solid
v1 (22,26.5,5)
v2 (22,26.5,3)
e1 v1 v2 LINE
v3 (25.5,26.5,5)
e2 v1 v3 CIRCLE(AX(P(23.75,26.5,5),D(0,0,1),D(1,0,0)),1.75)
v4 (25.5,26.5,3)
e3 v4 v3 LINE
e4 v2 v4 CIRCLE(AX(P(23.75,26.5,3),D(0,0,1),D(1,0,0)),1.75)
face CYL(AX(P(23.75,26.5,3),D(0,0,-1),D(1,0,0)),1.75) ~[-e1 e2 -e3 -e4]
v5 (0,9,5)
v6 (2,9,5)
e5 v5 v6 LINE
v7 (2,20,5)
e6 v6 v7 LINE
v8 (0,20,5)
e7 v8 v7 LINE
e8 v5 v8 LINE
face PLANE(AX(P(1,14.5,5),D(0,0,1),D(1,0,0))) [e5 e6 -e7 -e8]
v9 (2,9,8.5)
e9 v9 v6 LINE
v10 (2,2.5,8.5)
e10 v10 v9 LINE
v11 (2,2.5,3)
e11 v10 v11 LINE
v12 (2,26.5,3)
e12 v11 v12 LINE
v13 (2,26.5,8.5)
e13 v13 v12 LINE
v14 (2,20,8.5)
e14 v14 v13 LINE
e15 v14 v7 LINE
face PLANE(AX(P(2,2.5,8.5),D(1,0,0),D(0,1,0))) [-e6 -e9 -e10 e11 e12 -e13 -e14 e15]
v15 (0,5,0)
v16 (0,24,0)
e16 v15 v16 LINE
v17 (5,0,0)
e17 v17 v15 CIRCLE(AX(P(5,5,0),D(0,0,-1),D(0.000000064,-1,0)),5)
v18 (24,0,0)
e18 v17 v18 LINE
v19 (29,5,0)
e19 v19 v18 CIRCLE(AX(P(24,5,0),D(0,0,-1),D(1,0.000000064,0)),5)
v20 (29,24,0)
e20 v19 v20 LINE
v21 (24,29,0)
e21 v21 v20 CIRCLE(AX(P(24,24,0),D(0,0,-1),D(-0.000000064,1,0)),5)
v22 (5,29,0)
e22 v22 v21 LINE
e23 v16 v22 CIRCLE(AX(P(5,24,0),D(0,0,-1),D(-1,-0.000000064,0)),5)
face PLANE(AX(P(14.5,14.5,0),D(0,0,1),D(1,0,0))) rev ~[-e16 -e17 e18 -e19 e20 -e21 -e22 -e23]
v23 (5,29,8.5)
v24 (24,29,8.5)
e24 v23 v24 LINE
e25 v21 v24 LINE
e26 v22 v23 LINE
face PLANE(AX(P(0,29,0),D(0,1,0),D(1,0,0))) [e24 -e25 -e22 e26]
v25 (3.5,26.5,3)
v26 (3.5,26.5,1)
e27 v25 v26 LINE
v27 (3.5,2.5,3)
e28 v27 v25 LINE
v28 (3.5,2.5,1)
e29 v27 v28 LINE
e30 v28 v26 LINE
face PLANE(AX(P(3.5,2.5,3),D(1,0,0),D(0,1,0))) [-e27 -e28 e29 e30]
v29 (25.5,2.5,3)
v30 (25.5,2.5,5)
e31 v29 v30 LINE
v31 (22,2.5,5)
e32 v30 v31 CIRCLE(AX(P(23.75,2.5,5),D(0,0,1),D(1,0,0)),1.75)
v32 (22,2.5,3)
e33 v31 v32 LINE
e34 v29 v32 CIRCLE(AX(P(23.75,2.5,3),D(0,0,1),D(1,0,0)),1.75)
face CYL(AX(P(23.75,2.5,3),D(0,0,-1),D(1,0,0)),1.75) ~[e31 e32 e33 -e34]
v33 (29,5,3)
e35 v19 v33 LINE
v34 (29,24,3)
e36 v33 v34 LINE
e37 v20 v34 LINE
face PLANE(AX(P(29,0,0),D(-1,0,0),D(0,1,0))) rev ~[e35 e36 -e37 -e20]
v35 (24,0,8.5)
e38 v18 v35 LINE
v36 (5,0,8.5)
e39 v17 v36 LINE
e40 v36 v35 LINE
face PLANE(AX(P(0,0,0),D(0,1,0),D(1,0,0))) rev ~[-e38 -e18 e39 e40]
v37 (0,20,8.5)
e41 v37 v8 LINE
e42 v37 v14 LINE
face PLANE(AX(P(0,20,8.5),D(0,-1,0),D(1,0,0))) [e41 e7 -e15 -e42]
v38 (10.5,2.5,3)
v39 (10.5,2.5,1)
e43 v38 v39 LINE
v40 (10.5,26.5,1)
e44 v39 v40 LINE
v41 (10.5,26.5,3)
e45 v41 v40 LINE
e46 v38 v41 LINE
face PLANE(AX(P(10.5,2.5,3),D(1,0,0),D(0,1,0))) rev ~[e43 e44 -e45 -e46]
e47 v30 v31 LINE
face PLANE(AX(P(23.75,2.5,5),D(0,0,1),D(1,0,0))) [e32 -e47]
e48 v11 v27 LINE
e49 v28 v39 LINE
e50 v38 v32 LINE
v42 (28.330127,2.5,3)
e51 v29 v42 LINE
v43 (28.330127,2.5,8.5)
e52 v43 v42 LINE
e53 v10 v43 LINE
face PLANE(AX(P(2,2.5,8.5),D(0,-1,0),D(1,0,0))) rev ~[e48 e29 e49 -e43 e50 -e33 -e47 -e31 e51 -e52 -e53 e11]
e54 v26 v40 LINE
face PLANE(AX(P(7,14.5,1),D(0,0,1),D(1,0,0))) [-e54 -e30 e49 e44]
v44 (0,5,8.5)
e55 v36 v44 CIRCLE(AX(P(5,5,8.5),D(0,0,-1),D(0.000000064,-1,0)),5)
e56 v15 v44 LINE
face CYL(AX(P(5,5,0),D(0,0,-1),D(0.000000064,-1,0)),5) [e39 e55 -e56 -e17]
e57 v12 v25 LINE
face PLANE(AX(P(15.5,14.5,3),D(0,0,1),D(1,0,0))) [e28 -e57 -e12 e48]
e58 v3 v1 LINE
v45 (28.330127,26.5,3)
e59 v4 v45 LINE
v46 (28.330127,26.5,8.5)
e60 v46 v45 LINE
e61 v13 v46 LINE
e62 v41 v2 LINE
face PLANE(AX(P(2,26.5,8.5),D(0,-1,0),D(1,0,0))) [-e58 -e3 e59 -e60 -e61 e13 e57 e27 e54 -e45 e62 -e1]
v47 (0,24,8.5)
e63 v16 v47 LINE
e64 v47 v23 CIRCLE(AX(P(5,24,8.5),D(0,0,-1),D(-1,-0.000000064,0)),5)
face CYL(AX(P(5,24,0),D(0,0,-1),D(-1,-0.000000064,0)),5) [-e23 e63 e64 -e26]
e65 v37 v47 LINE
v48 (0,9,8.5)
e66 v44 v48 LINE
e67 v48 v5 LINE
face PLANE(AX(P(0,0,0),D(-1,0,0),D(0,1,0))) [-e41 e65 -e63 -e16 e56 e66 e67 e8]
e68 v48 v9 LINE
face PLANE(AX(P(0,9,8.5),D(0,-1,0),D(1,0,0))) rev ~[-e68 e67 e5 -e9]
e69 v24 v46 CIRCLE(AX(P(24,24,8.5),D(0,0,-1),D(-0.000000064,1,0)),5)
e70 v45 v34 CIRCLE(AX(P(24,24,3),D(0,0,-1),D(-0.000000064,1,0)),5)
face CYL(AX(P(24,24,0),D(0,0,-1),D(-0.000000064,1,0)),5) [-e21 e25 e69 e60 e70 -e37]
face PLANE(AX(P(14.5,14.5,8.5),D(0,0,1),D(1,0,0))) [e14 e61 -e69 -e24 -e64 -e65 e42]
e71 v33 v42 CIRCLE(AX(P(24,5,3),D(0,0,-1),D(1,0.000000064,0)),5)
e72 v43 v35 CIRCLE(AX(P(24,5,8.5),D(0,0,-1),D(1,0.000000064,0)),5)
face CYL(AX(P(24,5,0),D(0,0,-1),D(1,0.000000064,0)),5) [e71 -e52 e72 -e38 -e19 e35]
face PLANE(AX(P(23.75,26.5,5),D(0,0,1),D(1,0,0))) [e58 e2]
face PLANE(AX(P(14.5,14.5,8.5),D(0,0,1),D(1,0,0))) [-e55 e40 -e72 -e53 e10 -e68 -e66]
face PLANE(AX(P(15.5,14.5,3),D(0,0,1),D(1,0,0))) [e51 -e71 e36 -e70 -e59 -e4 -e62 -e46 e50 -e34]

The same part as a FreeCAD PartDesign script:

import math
import FreeCAD as App
import Part
import Sketcher

V = App.Vector

doc = App.newDocument("Part")
body = doc.addObject("PartDesign::Body", "Body")

sketch1 = doc.addObject("Sketcher::SketchObject", "Sketch")
body.addObject(sketch1)
sketch1.AttachmentSupport = (doc.XY_Plane, [""])
sketch1.MapMode = "FlatFace"
sketch1.addGeometry(Part.LineSegment(V(0, 29, 0), V(0, 0, 0)), False)
sketch1.addGeometry(Part.LineSegment(V(0, 0, 0), V(29, 0, 0)), False)
sketch1.addGeometry(Part.LineSegment(V(29, 0, 0), V(29, 29, 0)), False)
sketch1.addGeometry(Part.LineSegment(V(29, 29, 0), V(0, 29, 0)), False)
sketch1.addConstraint(Sketcher.Constraint("Coincident", 0, 2, 1, 1))
sketch1.addConstraint(Sketcher.Constraint("Coincident", 1, 2, 2, 1))
sketch1.addConstraint(Sketcher.Constraint("Coincident", 2, 2, 3, 1))
sketch1.addConstraint(Sketcher.Constraint("Coincident", 3, 2, 0, 1))
sketch1.addConstraint(Sketcher.Constraint("Vertical", 0))
sketch1.addConstraint(Sketcher.Constraint("Horizontal", 1))
sketch1.addConstraint(Sketcher.Constraint("Vertical", 2))
sketch1.addConstraint(Sketcher.Constraint("Horizontal", 3))
sketch1.addConstraint(Sketcher.Constraint("Coincident", 0, 2, -1, 1))
sketch1.addConstraint(Sketcher.Constraint("Equal", 3, 0))
sketch1.addConstraint(Sketcher.Constraint("DistanceX", 1, 1, 1, 2, 29.0))
pad1 = doc.addObject("PartDesign::Pad", "Pad")
body.addObject(pad1)
pad1.Profile = sketch1
pad1.Length = 8.5

sketch2 = doc.addObject("Sketcher::SketchObject", "Sketch001")
body.addObject(sketch2)
sketch2.AttachmentSupport = (doc.XY_Plane, [""])
sketch2.MapMode = "FlatFace"
sketch2.AttachmentOffset = App.Placement(V(0, 0, 8.5), App.Rotation())
sketch2.addGeometry(Part.LineSegment(V(2, 26, 0), V(2, 2, 0)), False)
sketch2.addGeometry(Part.LineSegment(V(2, 2, 0), V(29, 2, 0)), False)
sketch2.addGeometry(Part.LineSegment(V(29, 2, 0), V(29, 26, 0)), False)
sketch2.addGeometry(Part.LineSegment(V(29, 26, 0), V(2, 26, 0)), False)
sketch2.addConstraint(Sketcher.Constraint("Coincident", 0, 2, 1, 1))
sketch2.addConstraint(Sketcher.Constraint("Coincident", 1, 2, 2, 1))
sketch2.addConstraint(Sketcher.Constraint("Coincident", 2, 2, 3, 1))
sketch2.addConstraint(Sketcher.Constraint("Coincident", 3, 2, 0, 1))
sketch2.addConstraint(Sketcher.Constraint("Vertical", 0))
sketch2.addConstraint(Sketcher.Constraint("Horizontal", 1))
sketch2.addConstraint(Sketcher.Constraint("Vertical", 2))
sketch2.addConstraint(Sketcher.Constraint("Horizontal", 3))
sketch2.addConstraint(Sketcher.Constraint("DistanceX", 1, 1, 1, 2, 27.0))
sketch2.addConstraint(Sketcher.Constraint("DistanceY", 0, 2, 0, 1, 24.0))
sketch2.addConstraint(Sketcher.Constraint("DistanceX", -1, 1, 0, 2, 2.0))
sketch2.addConstraint(Sketcher.Constraint("DistanceY", -1, 1, 0, 2, 2.5))
pocket1 = doc.addObject("PartDesign::Pocket", "Pocket")
body.addObject(pocket1)
pocket1.Profile = sketch2
pocket1.Length = 5.5

sketch3 = doc.addObject("Sketcher::SketchObject", "Sketch002")
body.addObject(sketch3)
sketch3.AttachmentSupport = (doc.XY_Plane, [""])
sketch3.MapMode = "FlatFace"
sketch3.AttachmentOffset = App.Placement(V(0, 0, 3), App.Rotation())
sketch3.addGeometry(Part.LineSegment(V(4, 26, 0), V(4, 2, 0)), False)
sketch3.addGeometry(Part.LineSegment(V(4, 2, 0), V(10, 2, 0)), False)
sketch3.addGeometry(Part.LineSegment(V(10, 2, 0), V(10, 26, 0)), False)
sketch3.addGeometry(Part.LineSegment(V(10, 26, 0), V(4, 26, 0)), False)
sketch3.addConstraint(Sketcher.Constraint("Coincident", 0, 2, 1, 1))
sketch3.addConstraint(Sketcher.Constraint("Coincident", 1, 2, 2, 1))
sketch3.addConstraint(Sketcher.Constraint("Coincident", 2, 2, 3, 1))
sketch3.addConstraint(Sketcher.Constraint("Coincident", 3, 2, 0, 1))
sketch3.addConstraint(Sketcher.Constraint("Vertical", 0))
sketch3.addConstraint(Sketcher.Constraint("Horizontal", 1))
sketch3.addConstraint(Sketcher.Constraint("Vertical", 2))
sketch3.addConstraint(Sketcher.Constraint("Horizontal", 3))
sketch3.addConstraint(Sketcher.Constraint("DistanceX", 1, 1, 1, 2, 7.0))
sketch3.addConstraint(Sketcher.Constraint("DistanceY", 0, 2, 0, 1, 24.0))
sketch3.addConstraint(Sketcher.Constraint("DistanceX", -1, 1, 0, 2, 3.5))
sketch3.addConstraint(Sketcher.Constraint("DistanceY", -1, 1, 0, 2, 2.5))
pocket2 = doc.addObject("PartDesign::Pocket", "Pocket001")
body.addObject(pocket2)
pocket2.Profile = sketch3
pocket2.Length = 2

sketch4 = doc.addObject("Sketcher::SketchObject", "Sketch003")
body.addObject(sketch4)
sketch4.AttachmentSupport = (doc.XY_Plane, [""])
sketch4.MapMode = "FlatFace"
sketch4.AttachmentOffset = App.Placement(V(0, 0, 3), App.Rotation())
sketch4.addGeometry(Part.Circle(V(23.8, 2.5, 0), V(0, 0, 1), 1.8), False)
sketch4.addGeometry(Part.Circle(V(23.8, 26.5, 0), V(0, 0, 1), 1.8), False)
sketch4.addConstraint(Sketcher.Constraint("Equal", 0, 1))
sketch4.addConstraint(Sketcher.Constraint("Vertical", 0, 3, 1, 3))
sketch4.addConstraint(Sketcher.Constraint("Diameter", 0, 3.5))
sketch4.addConstraint(Sketcher.Constraint("DistanceY", 0, 3, 1, 3, 24.0))
sketch4.addConstraint(Sketcher.Constraint("DistanceY", -1, 1, 0, 3, 2.5))
sketch4.addConstraint(Sketcher.Constraint("DistanceX", -1, 1, 0, 3, 23.75))
pad2 = doc.addObject("PartDesign::Pad", "Pad001")
body.addObject(pad2)
pad2.Profile = sketch4
pad2.Length = 2

sketch5 = doc.addObject("Sketcher::SketchObject", "Sketch004")
body.addObject(sketch5)
sketch5.AttachmentSupport = (doc.XY_Plane, [""])
sketch5.MapMode = "FlatFace"
sketch5.AttachmentOffset = App.Placement(V(0, 0, 8.5), App.Rotation())
sketch5.addGeometry(Part.LineSegment(V(0, 20, 0), V(0, 9, 0)), False)
sketch5.addGeometry(Part.LineSegment(V(0, 9, 0), V(2, 9, 0)), False)
sketch5.addGeometry(Part.LineSegment(V(2, 9, 0), V(2, 20, 0)), False)
sketch5.addGeometry(Part.LineSegment(V(2, 20, 0), V(0, 20, 0)), False)
sketch5.addConstraint(Sketcher.Constraint("Coincident", 0, 2, 1, 1))
sketch5.addConstraint(Sketcher.Constraint("Coincident", 1, 2, 2, 1))
sketch5.addConstraint(Sketcher.Constraint("Coincident", 2, 2, 3, 1))
sketch5.addConstraint(Sketcher.Constraint("Coincident", 3, 2, 0, 1))
sketch5.addConstraint(Sketcher.Constraint("Vertical", 0))
sketch5.addConstraint(Sketcher.Constraint("Horizontal", 1))
sketch5.addConstraint(Sketcher.Constraint("Vertical", 2))
sketch5.addConstraint(Sketcher.Constraint("Horizontal", 3))
sketch5.addConstraint(Sketcher.Constraint("PointOnObject", 0, 2, -2))
sketch5.addConstraint(Sketcher.Constraint("DistanceX", 1, 1, 1, 2, 2.0))
sketch5.addConstraint(Sketcher.Constraint("DistanceY", 0, 2, 0, 1, 11.0))
sketch5.addConstraint(Sketcher.Constraint("DistanceY", -1, 1, 0, 2, 9.0))
pocket3 = doc.addObject("PartDesign::Pocket", "Pocket002")
body.addObject(pocket3)
pocket3.Profile = sketch5
pocket3.Length = 3.5

sketch6 = doc.addObject("Sketcher::SketchObject", "Sketch005")
body.addObject(sketch6)
sketch6.AttachmentSupport = (doc.XY_Plane, [""])
sketch6.MapMode = "FlatFace"
sketch6.addGeometry(Part.ArcOfCircle(Part.Circle(V(5, 5, 0), V(0, 0, 1), 5), math.radians(180), math.radians(270)), False)
sketch6.addGeometry(Part.LineSegment(V(5, 0, 0), V(0, 0, 0)), False)
sketch6.addGeometry(Part.LineSegment(V(0, 0, 0), V(0, 5, 0)), False)
sketch6.addGeometry(Part.ArcOfCircle(Part.Circle(V(5, 24, 0), V(0, 0, 1), 5), math.radians(90), math.radians(180)), False)
sketch6.addGeometry(Part.LineSegment(V(0, 24, 0), V(0, 29, 0)), False)
sketch6.addGeometry(Part.LineSegment(V(0, 29, 0), V(5, 29, 0)), False)
sketch6.addGeometry(Part.ArcOfCircle(Part.Circle(V(24, 5, 0), V(0, 0, 1), 5), math.radians(-90), math.radians(0)), False)
sketch6.addGeometry(Part.LineSegment(V(29, 5, 0), V(29, 0, 0)), False)
sketch6.addGeometry(Part.LineSegment(V(29, 0, 0), V(24, 0, 0)), False)
sketch6.addGeometry(Part.ArcOfCircle(Part.Circle(V(24, 24, 0), V(0, 0, 1), 5), math.radians(0), math.radians(90)), False)
sketch6.addGeometry(Part.LineSegment(V(24, 29, 0), V(29, 29, 0)), False)
sketch6.addGeometry(Part.LineSegment(V(29, 29, 0), V(29, 24, 0)), False)
sketch6.addConstraint(Sketcher.Constraint("Tangent", 0, 2, 1, 1))
sketch6.addConstraint(Sketcher.Constraint("Coincident", 1, 2, 2, 1))
sketch6.addConstraint(Sketcher.Constraint("Tangent", 2, 2, 0, 1))
sketch6.addConstraint(Sketcher.Constraint("Tangent", 3, 2, 4, 1))
sketch6.addConstraint(Sketcher.Constraint("Coincident", 4, 2, 5, 1))
sketch6.addConstraint(Sketcher.Constraint("Tangent", 5, 2, 3, 1))
sketch6.addConstraint(Sketcher.Constraint("Tangent", 6, 2, 7, 1))
sketch6.addConstraint(Sketcher.Constraint("Coincident", 7, 2, 8, 1))
sketch6.addConstraint(Sketcher.Constraint("Tangent", 8, 2, 6, 1))
sketch6.addConstraint(Sketcher.Constraint("Tangent", 9, 2, 10, 1))
sketch6.addConstraint(Sketcher.Constraint("Coincident", 10, 2, 11, 1))
sketch6.addConstraint(Sketcher.Constraint("Tangent", 11, 2, 9, 1))
sketch6.addConstraint(Sketcher.Constraint("Horizontal", 1))
sketch6.addConstraint(Sketcher.Constraint("Vertical", 2))
sketch6.addConstraint(Sketcher.Constraint("Vertical", 4))
sketch6.addConstraint(Sketcher.Constraint("Horizontal", 5))
sketch6.addConstraint(Sketcher.Constraint("Vertical", 7))
sketch6.addConstraint(Sketcher.Constraint("Horizontal", 8))
sketch6.addConstraint(Sketcher.Constraint("Horizontal", 10))
sketch6.addConstraint(Sketcher.Constraint("Vertical", 11))
sketch6.addConstraint(Sketcher.Constraint("Coincident", 1, 2, -1, 1))
sketch6.addConstraint(Sketcher.Constraint("Equal", 0, 3))
sketch6.addConstraint(Sketcher.Constraint("Equal", 3, 6))
sketch6.addConstraint(Sketcher.Constraint("Equal", 6, 9))
sketch6.addConstraint(Sketcher.Constraint("PointOnObject", 3, 2, -2))
sketch6.addConstraint(Sketcher.Constraint("PointOnObject", 7, 2, -1))
sketch6.addConstraint(Sketcher.Constraint("Horizontal", 3, 3, 9, 3))
sketch6.addConstraint(Sketcher.Constraint("Vertical", 6, 3, 9, 3))
sketch6.addConstraint(Sketcher.Constraint("Radius", 0, 5.0))
sketch6.addConstraint(Sketcher.Constraint("DistanceY", -1, 1, 3, 3, 24.0))
sketch6.addConstraint(Sketcher.Constraint("DistanceX", -1, 1, 6, 3, 24.0))
pocket4 = doc.addObject("PartDesign::Pocket", "Pocket003")
body.addObject(pocket4)
pocket4.Profile = sketch6
pocket4.Type = "ThroughAll"
pocket4.Reversed = True

doc.recompute()
